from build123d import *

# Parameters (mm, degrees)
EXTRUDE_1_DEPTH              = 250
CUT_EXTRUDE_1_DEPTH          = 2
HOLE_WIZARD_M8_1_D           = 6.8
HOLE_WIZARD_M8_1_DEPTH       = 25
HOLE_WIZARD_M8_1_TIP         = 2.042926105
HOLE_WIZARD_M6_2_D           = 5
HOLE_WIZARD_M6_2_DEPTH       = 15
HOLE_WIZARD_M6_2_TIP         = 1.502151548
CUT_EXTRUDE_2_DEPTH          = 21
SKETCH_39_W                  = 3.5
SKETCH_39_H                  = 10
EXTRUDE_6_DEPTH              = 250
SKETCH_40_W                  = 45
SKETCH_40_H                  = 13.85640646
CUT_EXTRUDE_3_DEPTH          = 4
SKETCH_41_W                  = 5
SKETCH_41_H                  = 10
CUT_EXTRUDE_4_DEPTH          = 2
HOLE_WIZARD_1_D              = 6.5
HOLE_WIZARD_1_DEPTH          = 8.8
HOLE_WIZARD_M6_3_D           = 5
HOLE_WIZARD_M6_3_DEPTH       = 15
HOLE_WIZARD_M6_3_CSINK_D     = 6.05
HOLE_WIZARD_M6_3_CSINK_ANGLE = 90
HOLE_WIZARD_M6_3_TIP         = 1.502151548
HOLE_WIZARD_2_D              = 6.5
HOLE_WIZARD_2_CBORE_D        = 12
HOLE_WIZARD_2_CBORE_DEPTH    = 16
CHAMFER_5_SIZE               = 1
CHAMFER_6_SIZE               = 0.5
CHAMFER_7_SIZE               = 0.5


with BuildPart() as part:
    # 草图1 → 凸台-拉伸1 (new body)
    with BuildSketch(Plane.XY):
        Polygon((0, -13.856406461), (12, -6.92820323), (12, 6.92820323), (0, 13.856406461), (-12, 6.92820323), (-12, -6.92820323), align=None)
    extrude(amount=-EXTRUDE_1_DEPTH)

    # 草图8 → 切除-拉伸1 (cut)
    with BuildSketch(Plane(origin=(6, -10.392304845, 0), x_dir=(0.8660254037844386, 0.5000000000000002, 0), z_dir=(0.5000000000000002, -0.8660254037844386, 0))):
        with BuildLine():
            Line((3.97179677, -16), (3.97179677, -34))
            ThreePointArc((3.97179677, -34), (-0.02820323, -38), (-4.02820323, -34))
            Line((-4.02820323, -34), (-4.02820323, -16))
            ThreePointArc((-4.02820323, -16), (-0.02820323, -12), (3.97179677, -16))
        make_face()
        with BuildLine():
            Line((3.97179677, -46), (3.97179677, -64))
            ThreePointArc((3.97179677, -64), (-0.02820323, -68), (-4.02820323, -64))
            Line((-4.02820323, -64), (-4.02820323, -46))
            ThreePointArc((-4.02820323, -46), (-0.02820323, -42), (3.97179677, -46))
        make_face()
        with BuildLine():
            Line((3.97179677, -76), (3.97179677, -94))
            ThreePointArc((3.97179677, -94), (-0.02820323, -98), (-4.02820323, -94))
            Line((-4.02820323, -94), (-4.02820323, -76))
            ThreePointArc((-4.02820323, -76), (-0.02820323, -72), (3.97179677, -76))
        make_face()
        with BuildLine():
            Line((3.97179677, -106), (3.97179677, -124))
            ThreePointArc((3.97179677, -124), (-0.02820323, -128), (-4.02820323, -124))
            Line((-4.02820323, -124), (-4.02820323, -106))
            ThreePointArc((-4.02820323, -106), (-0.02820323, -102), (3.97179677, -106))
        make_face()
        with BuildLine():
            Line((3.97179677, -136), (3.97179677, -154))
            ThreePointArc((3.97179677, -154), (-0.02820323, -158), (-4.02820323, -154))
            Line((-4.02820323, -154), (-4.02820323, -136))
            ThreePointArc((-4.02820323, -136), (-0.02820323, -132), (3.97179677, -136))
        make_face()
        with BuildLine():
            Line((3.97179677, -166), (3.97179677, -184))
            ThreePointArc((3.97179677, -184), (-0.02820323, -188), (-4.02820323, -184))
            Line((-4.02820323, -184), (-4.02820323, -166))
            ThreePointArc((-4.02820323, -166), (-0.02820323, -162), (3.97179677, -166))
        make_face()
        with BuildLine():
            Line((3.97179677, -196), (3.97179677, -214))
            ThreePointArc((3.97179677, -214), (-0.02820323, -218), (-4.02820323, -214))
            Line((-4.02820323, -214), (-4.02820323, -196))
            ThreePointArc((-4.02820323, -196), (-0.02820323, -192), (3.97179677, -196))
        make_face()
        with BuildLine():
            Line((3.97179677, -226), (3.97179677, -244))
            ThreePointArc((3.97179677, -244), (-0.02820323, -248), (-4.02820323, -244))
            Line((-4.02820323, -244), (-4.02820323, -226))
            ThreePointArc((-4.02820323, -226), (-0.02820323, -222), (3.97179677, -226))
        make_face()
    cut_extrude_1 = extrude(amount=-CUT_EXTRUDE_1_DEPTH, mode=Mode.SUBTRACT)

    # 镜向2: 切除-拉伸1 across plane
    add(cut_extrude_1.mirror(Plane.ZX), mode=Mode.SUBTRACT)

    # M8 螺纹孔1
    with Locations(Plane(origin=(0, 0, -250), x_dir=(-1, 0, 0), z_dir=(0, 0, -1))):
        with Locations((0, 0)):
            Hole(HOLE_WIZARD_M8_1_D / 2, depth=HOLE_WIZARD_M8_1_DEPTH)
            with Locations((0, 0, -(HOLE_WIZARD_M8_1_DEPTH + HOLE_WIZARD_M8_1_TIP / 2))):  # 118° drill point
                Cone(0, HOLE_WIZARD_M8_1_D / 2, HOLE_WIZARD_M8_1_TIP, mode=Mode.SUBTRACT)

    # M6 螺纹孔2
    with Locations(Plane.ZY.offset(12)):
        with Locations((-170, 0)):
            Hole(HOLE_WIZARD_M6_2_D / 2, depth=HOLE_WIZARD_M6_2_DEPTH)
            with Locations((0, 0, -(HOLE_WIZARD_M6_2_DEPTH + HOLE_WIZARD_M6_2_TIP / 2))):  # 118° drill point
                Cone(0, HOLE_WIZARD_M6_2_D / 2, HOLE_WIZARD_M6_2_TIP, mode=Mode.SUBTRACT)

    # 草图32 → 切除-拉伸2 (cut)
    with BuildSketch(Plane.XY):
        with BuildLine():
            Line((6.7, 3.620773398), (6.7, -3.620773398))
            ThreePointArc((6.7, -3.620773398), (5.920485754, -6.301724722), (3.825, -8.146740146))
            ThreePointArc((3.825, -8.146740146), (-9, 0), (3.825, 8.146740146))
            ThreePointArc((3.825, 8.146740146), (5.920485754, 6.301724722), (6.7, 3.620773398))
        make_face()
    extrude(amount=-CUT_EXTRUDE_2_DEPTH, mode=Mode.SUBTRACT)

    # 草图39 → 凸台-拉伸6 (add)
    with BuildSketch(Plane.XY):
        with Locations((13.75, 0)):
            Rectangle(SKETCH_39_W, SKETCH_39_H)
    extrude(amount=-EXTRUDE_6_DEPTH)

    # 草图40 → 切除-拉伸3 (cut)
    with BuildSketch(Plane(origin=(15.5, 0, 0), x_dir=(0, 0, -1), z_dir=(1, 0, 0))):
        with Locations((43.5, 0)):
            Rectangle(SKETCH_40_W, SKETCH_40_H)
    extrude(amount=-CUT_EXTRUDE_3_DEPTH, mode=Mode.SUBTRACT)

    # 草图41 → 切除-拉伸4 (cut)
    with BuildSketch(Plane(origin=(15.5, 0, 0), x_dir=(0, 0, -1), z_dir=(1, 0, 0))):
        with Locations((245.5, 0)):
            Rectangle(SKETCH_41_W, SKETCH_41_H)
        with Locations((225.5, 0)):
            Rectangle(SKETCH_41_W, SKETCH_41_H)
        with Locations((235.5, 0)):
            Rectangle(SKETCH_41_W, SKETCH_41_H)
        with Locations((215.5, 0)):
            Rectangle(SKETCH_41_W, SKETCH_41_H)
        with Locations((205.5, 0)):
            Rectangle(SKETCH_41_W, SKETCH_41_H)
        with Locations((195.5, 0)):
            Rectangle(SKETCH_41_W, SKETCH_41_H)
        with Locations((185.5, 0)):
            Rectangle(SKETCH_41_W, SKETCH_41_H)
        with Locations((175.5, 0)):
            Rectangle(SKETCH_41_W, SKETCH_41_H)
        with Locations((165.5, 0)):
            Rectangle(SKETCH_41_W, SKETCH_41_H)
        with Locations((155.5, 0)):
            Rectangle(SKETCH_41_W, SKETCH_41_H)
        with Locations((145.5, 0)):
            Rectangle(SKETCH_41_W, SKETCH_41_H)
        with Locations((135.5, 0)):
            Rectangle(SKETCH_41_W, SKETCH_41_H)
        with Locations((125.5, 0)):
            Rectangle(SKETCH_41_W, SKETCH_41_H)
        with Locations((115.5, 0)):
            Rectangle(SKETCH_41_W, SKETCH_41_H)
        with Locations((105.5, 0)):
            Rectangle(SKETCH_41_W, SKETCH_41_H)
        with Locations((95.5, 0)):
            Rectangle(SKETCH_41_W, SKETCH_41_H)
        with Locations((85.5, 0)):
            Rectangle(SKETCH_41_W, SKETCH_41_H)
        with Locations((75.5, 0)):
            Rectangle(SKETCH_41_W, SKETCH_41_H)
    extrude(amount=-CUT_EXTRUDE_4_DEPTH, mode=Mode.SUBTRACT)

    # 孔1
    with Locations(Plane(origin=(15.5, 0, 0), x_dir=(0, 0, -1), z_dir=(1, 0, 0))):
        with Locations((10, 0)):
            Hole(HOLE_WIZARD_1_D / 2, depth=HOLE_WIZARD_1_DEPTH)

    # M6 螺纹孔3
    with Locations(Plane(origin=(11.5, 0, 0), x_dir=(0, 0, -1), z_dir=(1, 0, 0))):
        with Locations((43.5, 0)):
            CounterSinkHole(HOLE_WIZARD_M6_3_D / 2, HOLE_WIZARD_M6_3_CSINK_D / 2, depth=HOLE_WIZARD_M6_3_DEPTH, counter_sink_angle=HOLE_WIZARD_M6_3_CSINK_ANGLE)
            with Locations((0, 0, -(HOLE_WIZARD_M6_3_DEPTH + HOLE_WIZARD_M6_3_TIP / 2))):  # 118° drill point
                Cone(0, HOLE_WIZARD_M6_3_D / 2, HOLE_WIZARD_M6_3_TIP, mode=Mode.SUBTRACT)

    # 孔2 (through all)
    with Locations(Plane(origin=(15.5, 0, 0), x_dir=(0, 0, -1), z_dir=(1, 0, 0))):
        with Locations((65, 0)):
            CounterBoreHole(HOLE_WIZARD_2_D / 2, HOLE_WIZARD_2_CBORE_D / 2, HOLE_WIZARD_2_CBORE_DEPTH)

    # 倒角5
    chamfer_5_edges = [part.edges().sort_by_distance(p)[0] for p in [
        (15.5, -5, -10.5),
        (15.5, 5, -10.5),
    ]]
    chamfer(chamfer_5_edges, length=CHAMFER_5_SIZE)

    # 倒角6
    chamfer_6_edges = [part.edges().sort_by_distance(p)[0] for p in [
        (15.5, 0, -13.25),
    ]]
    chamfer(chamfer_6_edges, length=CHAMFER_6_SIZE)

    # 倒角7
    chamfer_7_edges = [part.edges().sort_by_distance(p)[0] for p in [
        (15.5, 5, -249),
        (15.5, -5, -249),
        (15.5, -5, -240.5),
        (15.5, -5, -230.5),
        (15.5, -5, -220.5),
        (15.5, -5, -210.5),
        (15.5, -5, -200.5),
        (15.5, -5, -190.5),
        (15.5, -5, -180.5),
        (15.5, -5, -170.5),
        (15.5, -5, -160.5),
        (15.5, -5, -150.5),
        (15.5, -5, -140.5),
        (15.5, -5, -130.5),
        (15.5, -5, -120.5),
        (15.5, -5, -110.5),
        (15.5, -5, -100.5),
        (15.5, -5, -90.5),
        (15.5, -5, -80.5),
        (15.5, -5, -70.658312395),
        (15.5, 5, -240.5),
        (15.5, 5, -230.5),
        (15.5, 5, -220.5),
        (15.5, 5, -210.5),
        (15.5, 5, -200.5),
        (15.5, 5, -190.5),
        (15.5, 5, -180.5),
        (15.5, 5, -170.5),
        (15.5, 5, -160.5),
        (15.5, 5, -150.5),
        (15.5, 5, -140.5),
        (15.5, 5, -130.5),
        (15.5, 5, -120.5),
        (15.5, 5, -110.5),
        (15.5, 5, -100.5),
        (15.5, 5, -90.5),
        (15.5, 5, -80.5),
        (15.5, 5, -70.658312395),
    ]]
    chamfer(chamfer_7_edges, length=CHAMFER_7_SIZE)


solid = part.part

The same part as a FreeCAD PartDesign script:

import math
import FreeCAD as App
import Part
import Sketcher
Q = App.Units.Quantity


def edges_at(feature, points):
    """Names of the edges that pass closest to the given points."""
    edges = feature.Shape.Edges
    near = lambda p: min(range(len(edges)), key=lambda i: edges[i].distToShape(Part.Vertex(*p))[0])
    return sorted({f"Edge{near(p) + 1}" for p in points})


def add_polygon(sketch, points):
    """Adds a closed chain of lines whose ends are joined by coincident constraints."""
    first, n = sketch.GeometryCount, len(points)
    for a, b in zip(points, points[1:] + points[:1]):
        sketch.addGeometry(Part.LineSegment(App.Vector(*a, 0), App.Vector(*b, 0)), False)
    for i in range(n):
        sketch.addConstraint(Sketcher.Constraint("Coincident", first + i, 2, first + (i + 1) % n, 1))

doc = App.newDocument("Part")
body = doc.addObject("PartDesign::Body", "Body")

# Sketch on XY plane
sketch1 = body.newObject("Sketcher::SketchObject", "Sketch")
sketch1.AttachmentSupport = (doc.getObject("XY_Plane"), [""])
sketch1.MapMode = "FlatFace"
add_polygon(sketch1, [(0, -14), (12, -7), (12, 7), (0, 14), (-12, 7), (-12, -7)])  # lines 0-5
sketch1.addConstraint(Sketcher.Constraint("Vertical", 1))
sketch1.addConstraint(Sketcher.Constraint("Vertical", 4))
sketch1.addConstraint(Sketcher.Constraint("Symmetric", 0, 2, 3, 2, -1, 1))
sketch1.addConstraint(Sketcher.Constraint("Symmetric", 2, 2, 5, 2, -1, 1))
sketch1.addConstraint(Sketcher.Constraint("PointOnObject", 2, 2, -2))
sketch1.addConstraint(Sketcher.Constraint("Parallel", 2, 5))
sketch1.addConstraint(Sketcher.Constraint("Horizontal", 1, 2, 3, 2))
sketch1.addConstraint(Sketcher.Constraint("Angle", 0, Q("30 deg")))
sketch1.addConstraint(Sketcher.Constraint("DistanceX", -1, 1, 0, 2, Q("12 mm")))
sketch1.addConstraint(Sketcher.Constraint("DistanceY", 1, 1, 1, 2, Q("13.856406 mm")))
pad1 = body.newObject("PartDesign::Pad", "Pad")
pad1.Profile = sketch1
pad1.Length = 250
pad1.Reversed = True

# Sketch on an angled plane
sketch2 = body.newObject("Sketcher::SketchObject", "Sketch001")
sketch2.Placement = App.Placement(App.Vector(6, -10.392305, 0), App.Rotation(App.Vector(0.866025404, 0.5, 0), App.Vector(0, 0, 1), App.Vector(0.5, -0.866025404, 0), "ZXY"))
sketch2.addGeometry(Part.LineSegment(App.Vector(4, -34, 0), App.Vector(4, -16, 0)), False)
sketch2.addGeometry(Part.ArcOfCircle(Part.Circle(App.Vector(0, -16, 0), App.Vector(0, 0, 1), 4), math.radians(0), math.radians(180)), False)
sketch2.addGeometry(Part.LineSegment(App.Vector(-4, -16, 0), App.Vector(-4, -34, 0)), False)
sketch2.addGeometry(Part.ArcOfCircle(Part.Circle(App.Vector(0, -34, 0), App.Vector(0, 0, 1), 4), math.radians(180), math.radians(360)), False)
sketch2.addGeometry(Part.LineSegment(App.Vector(4, -64, 0), App.Vector(4, -46, 0)), False)
sketch2.addGeometry(Part.ArcOfCircle(Part.Circle(App.Vector(0, -46, 0), App.Vector(0, 0, 1), 4), math.radians(0), math.radians(180)), False)
sketch2.addGeometry(Part.LineSegment(App.Vector(-4, -46, 0), App.Vector(-4, -64, 0)), False)
sketch2.addGeometry(Part.ArcOfCircle(Part.Circle(App.Vector(0, -64, 0), App.Vector(0, 0, 1), 4), math.radians(180), math.radians(360)), False)
sketch2.addGeometry(Part.LineSegment(App.Vector(4, -94, 0), App.Vector(4, -76, 0)), False)
sketch2.addGeometry(Part.ArcOfCircle(Part.Circle(App.Vector(0, -76, 0), App.Vector(0, 0, 1), 4), math.radians(0), math.radians(180)), False)
sketch2.addGeometry(Part.LineSegment(App.Vector(-4, -76, 0), App.Vector(-4, -94, 0)), False)
sketch2.addGeometry(Part.ArcOfCircle(Part.Circle(App.Vector(0, -94, 0), App.Vector(0, 0, 1), 4), math.radians(180), math.radians(360)), False)
sketch2.addGeometry(Part.LineSegment(App.Vector(4, -124, 0), App.Vector(4, -106, 0)), False)
sketch2.addGeometry(Part.ArcOfCircle(Part.Circle(App.Vector(0, -106, 0), App.Vector(0, 0, 1), 4), math.radians(0), math.radians(180)), False)
sketch2.addGeometry(Part.LineSegment(App.Vector(-4, -106, 0), App.Vector(-4, -124, 0)), False)
sketch2.addGeometry(Part.ArcOfCircle(Part.Circle(App.Vector(0, -124, 0), App.Vector(0, 0, 1), 4), math.radians(180), math.radians(360)), False)
sketch2.addGeometry(Part.LineSegment(App.Vector(4, -154, 0), App.Vector(4, -136, 0)), False)
sketch2.addGeometry(Part.ArcOfCircle(Part.Circle(App.Vector(0, -136, 0), App.Vector(0, 0, 1), 4), math.radians(0), math.radians(180)), False)
sketch2.addGeometry(Part.LineSegment(App.Vector(-4, -136, 0), App.Vector(-4, -154, 0)), False)
sketch2.addGeometry(Part.ArcOfCircle(Part.Circle(App.Vector(0, -154, 0), App.Vector(0, 0, 1), 4), math.radians(180), math.radians(360)), False)
sketch2.addGeometry(Part.LineSegment(App.Vector(4, -184, 0), App.Vector(4, -166, 0)), False)
sketch2.addGeometry(Part.ArcOfCircle(Part.Circle(App.Vector(0, -166, 0), App.Vector(0, 0, 1), 4), math.radians(0), math.radians(180)), False)
sketch2.addGeometry(Part.LineSegment(App.Vector(-4, -166, 0), App.Vector(-4, -184, 0)), False)
sketch2.addGeometry(Part.ArcOfCircle(Part.Circle(App.Vector(0, -184, 0), App.Vector(0, 0, 1), 4), math.radians(180), math.radians(360)), False)
sketch2.addGeometry(Part.LineSegment(App.Vector(4, -214, 0), App.Vector(4, -196, 0)), False)
sketch2.addGeometry(Part.ArcOfCircle(Part.Circle(App.Vector(0, -196, 0), App.Vector(0, 0, 1), 4), math.radians(0), math.radians(180)), False)
sketch2.addGeometry(Part.LineSegment(App.Vector(-4, -196, 0), App.Vector(-4, -214, 0)), False)
sketch2.addGeometry(Part.ArcOfCircle(Part.Circle(App.Vector(0, -214, 0), App.Vector(0, 0, 1), 4), math.radians(180), math.radians(360)), False)
sketch2.addGeometry(Part.LineSegment(App.Vector(4, -244, 0), App.Vector(4, -226, 0)), False)
sketch2.addGeometry(Part.ArcOfCircle(Part.Circle(App.Vector(0, -226, 0), App.Vector(0, 0, 1), 4), math.radians(0), math.radians(180)), False)
sketch2.addGeometry(Part.LineSegment(App.Vector(-4, -226, 0), App.Vector(-4, -244, 0)), False)
sketch2.addGeometry(Part.ArcOfCircle(Part.Circle(App.Vector(0, -244, 0), App.Vector(0, 0, 1), 4), math.radians(180), math.radians(360)), False)
sketch2.addConstraint(Sketcher.Constraint("Tangent", 0, 2, 1, 1))
sketch2.addConstraint(Sketcher.Constraint("Tangent", 1, 2, 2, 1))
sketch2.addConstraint(Sketcher.Constraint("Tangent", 2, 2, 3, 1))
sketch2.addConstraint(Sketcher.Constraint("Tangent", 3, 2, 0, 1))
sketch2.addConstraint(Sketcher.Constraint("Tangent", 4, 2, 5, 1))
sketch2.addConstraint(Sketcher.Constraint("Tangent", 5, 2, 6, 1))
sketch2.addConstraint(Sketcher.Constraint("Tangent", 6, 2, 7, 1))
sketch2.addConstraint(Sketcher.Constraint("Tangent", 7, 2, 4, 1))
sketch2.addConstraint(Sketcher.Constraint("Tangent", 8, 2, 9, 1))
sketch2.addConstraint(Sketcher.Constraint("Tangent", 9, 2, 10, 1))
sketch2.addConstraint(Sketcher.Constraint("Tangent", 10, 2, 11, 1))
sketch2.addConstraint(Sketcher.Constraint("Tangent", 11, 2, 8, 1))
sketch2.addConstraint(Sketcher.Constraint("Tangent", 12, 2, 13, 1))
sketch2.addConstraint(Sketcher.Constraint("Tangent", 13, 2, 14, 1))
sketch2.addConstraint(Sketcher.Constraint("Tangent", 14, 2, 15, 1))
sketch2.addConstraint(Sketcher.Constraint("Tangent", 15, 2, 12, 1))
sketch2.addConstraint(Sketcher.Constraint("Tangent", 16, 2, 17, 1))
sketch2.addConstraint(Sketcher.Constraint("Tangent", 17, 2, 18, 1))
sketch2.addConstraint(Sketcher.Constraint("Tangent", 18, 2, 19, 1))
sketch2.addConstraint(Sketcher.Constraint("Tangent", 19, 2, 16, 1))
sketch2.addConstraint(Sketcher.Constraint("Tangent", 20, 2, 21, 1))
sketch2.addConstraint(Sketcher.Constraint("Tangent", 21, 2, 22, 1))
sketch2.addConstraint(Sketcher.Constraint("Tangent", 22, 2, 23, 1))
sketch2.addConstraint(Sketcher.Constraint("Tangent", 23, 2, 20, 1))
sketch2.addConstraint(Sketcher.Constraint("Tangent", 24, 2, 25, 1))
sketch2.addConstraint(Sketcher.Constraint("Tangent", 25, 2, 26, 1))
sketch2.addConstraint(Sketcher.Constraint("Tangent", 26, 2, 27, 1))
sketch2.addConstraint(Sketcher.Constraint("Tangent", 27, 2, 24, 1))
sketch2.addConstraint(Sketcher.Constraint("Tangent", 28, 2, 29, 1))
sketch2.addConstraint(Sketcher.Constraint("Tangent", 29, 2, 30, 1))
sketch2.addConstraint(Sketcher.Constraint("Tangent", 30, 2, 31, 1))
sketch2.addConstraint(Sketcher.Constraint("Tangent", 31, 2, 28, 1))
sketch2.addConstraint(Sketcher.Constraint("Vertical", 0))
sketch2.addConstraint(Sketcher.Constraint("Vertical", 2))
sketch2.addConstraint(Sketcher.Constraint("Vertical", 4))
sketch2.addConstraint(Sketcher.Constraint("Vertical", 6))
sketch2.addConstraint(Sketcher.Constraint("Vertical", 8))
sketch2.addConstraint(Sketcher.Constraint("Vertical", 10))
sketch2.addConstraint(Sketcher.Constraint("Vertical", 12))
sketch2.addConstraint(Sketcher.Constraint("Vertical", 14))
sketch2.addConstraint(Sketcher.Constraint("Vertical", 16))
sketch2.addConstraint(Sketcher.Constraint("Vertical", 18))
sketch2.addConstraint(Sketcher.Constraint("Vertical", 20))
sketch2.addConstraint(Sketcher.Constraint("Vertical", 22))
sketch2.addConstraint(Sketcher.Constraint("Vertical", 24))
sketch2.addConstraint(Sketcher.Constraint("Vertical", 26))
sketch2.addConstraint(Sketcher.Constraint("Vertical", 28))
sketch2.addConstraint(Sketcher.Constraint("Vertical", 30))
sketch2.addConstraint(Sketcher.Constraint("Equal", 3, 5))
sketch2.addConstraint(Sketcher.Constraint("Equal", 7, 9))
sketch2.addConstraint(Sketcher.Constraint("Equal", 11, 13))
sketch2.addConstraint(Sketcher.Constraint("Equal", 15, 17))
sketch2.addConstraint(Sketcher.Constraint("Equal", 19, 21))
sketch2.addConstraint(Sketcher.Constraint("Equal", 23, 25))
sketch2.addConstraint(Sketcher.Constraint("Equal", 27, 29))
sketch2.addConstraint(Sketcher.Constraint("Vertical", 3, 3, 5, 3))
sketch2.addConstraint(Sketcher.Constraint("Vertical", 7, 3, 9, 3))
sketch2.addConstraint(Sketcher.Constraint("Vertical", 11, 3, 13, 3))
sketch2.addConstraint(Sketcher.Constraint("Vertical", 15, 3, 17, 3))
sketch2.addConstraint(Sketcher.Constraint("Vertical", 19, 3, 21, 3))
sketch2.addConstraint(Sketcher.Constraint("Vertical", 23, 3, 25, 3))
sketch2.addConstraint(Sketcher.Constraint("Vertical", 27, 3, 29, 3))
sketch2.addConstraint(Sketcher.Constraint("Equal", 2, 4))
sketch2.addConstraint(Sketcher.Constraint("Equal", 6, 8))
sketch2.addConstraint(Sketcher.Constraint("Equal", 10, 12))
sketch2.addConstraint(Sketcher.Constraint("Equal", 14, 16))
sketch2.addConstraint(Sketcher.Constraint("Equal", 18, 20))
sketch2.addConstraint(Sketcher.Constraint("Equal", 22, 24))
sketch2.addConstraint(Sketcher.Constraint("Equal", 26, 28))
sketch2.addConstraint(Sketcher.Constraint("Radius", 1, Q("4 mm")))
sketch2.addConstraint(Sketcher.Constraint("DistanceY", 0, 1, 0, 2, Q("18 mm")))
sketch2.addConstraint(Sketcher.Constraint("DistanceY", 1, 3, -1, 1, Q("16 mm")))
sketch2.addConstraint(Sketcher.Constraint("DistanceY", 5, 3, -1, 1, Q("46 mm")))
sketch2.addConstraint(Sketcher.Constraint("DistanceY", 9, 3, -1, 1, Q("76 mm")))
sketch2.addConstraint(Sketcher.Constraint("DistanceY", 13, 3, -1, 1, Q("106 mm")))
sketch2.addConstraint(Sketcher.Constraint("DistanceY", 17, 3, -1, 1, Q("136 mm")))
sketch2.addConstraint(Sketcher.Constraint("DistanceY", 21, 3, -1, 1, Q("166 mm")))
sketch2.addConstraint(Sketcher.Constraint("DistanceY", 25, 3, -1, 1, Q("196 mm")))
sketch2.addConstraint(Sketcher.Constraint("DistanceY", 29, 3, -1, 1, Q("226 mm")))
sketch2.addConstraint(Sketcher.Constraint("DistanceX", 1, 3, -1, 1, Q("0.028203 mm")))
pocket1 = body.newObject("PartDesign::Pocket", "Pocket")
pocket1.Profile = sketch2
pocket1.Length = 2
doc.recompute()

mirrored = body.newObject("PartDesign::Mirrored", "Mirrored")
mirrored.Originals = [pocket1]
mirrored.MirrorPlane = (doc.getObject("XZ_Plane"), [""])
body.Tip = mirrored

# Sketch on XY plane
sketch3 = body.newObject("Sketcher::SketchObject", "Sketch002")
sketch3.AttachmentSupport = (doc.getObject("XY_Plane"), [""])
sketch3.MapMode = "FlatFace"
sketch3.AttachmentOffset = App.Placement(App.Vector(0, 0, -250), App.Rotation())
sketch3.addGeometry(Part.Circle(App.Vector(0, 0, 0), App.Vector(0, 0, 1), 3.4), False)
sketch3.addConstraint(Sketcher.Constraint("Coincident", 0, 3, -1, 1))
sketch3.addConstraint(Sketcher.Constraint("Diameter", 0, Q("6.8 mm")))
doc.recompute()
hole = body.newObject("PartDesign::Hole", "Hole")
hole.Profile = sketch3
hole.ThreadType = "None"
hole.Diameter = 6.8
hole.DepthType = "Dimension"
hole.Depth = 25
hole.DrillPoint = "Angled"
hole.DrillPointAngle = 118
hole.Reversed = True

# Sketch on YZ plane
sketch4 = body.newObject("Sketcher::SketchObject", "Sketch003")
sketch4.AttachmentSupport = (doc.getObject("YZ_Plane"), [""])
sketch4.MapMode = "FlatFace"
sketch4.AttachmentOffset = App.Placement(App.Vector(0, 0, -12), App.Rotation())
sketch4.addGeometry(Part.Circle(App.Vector(0, -170, 0), App.Vector(0, 0, 1), 2.5), False)
sketch4.addConstraint(Sketcher.Constraint("PointOnObject", 0, 3, -2))
sketch4.addConstraint(Sketcher.Constraint("Diameter", 0, Q("5 mm")))
sketch4.addConstraint(Sketcher.Constraint("DistanceY", 0, 3, -1, 1, Q("170 mm")))
doc.recompute()
hole2 = body.newObject("PartDesign::Hole", "Hole001")
hole2.Profile = sketch4
hole2.ThreadType = "None"
hole2.Diameter = 5
hole2.DepthType = "Dimension"
hole2.Depth = 15
hole2.DrillPoint = "Angled"
hole2.DrillPointAngle = 118
hole2.Reversed = True

# Sketch on XY plane
sketch5 = body.newObject("Sketcher::SketchObject", "Sketch004")
sketch5.AttachmentSupport = (doc.getObject("XY_Plane"), [""])
sketch5.MapMode = "FlatFace"
sketch5.addGeometry(Part.LineSegment(App.Vector(7, -4, 0), App.Vector(7, 4, 0)), False)
sketch5.addGeometry(Part.ArcOfCircle(Part.Circle(App.Vector(2, 4, 0), App.Vector(0, 0, 1), 5), math.radians(0), math.radians(65)), False)
sketch5.addGeometry(Part.ArcOfCircle(Part.Circle(App.Vector(0, 0, 0), App.Vector(0, 0, 1), 9), math.radians(65), math.radians(295)), False)
sketch5.addGeometry(Part.ArcOfCircle(Part.Circle(App.Vector(2, -4, 0), App.Vector(0, 0, 1), 5), math.radians(-65), math.radians(0)), False)
sketch5.addConstraint(Sketcher.Constraint("Tangent", 0, 2, 1, 1))
sketch5.addConstraint(Sketcher.Constraint("Tangent", 1, 2, 2, 1))
sketch5.addConstraint(Sketcher.Constraint("Tangent", 2, 2, 3, 1))
sketch5.addConstraint(Sketcher.Constraint("Tangent", 3, 2, 0, 1))
sketch5.addConstraint(Sketcher.Constraint("Vertical", 0))
sketch5.addConstraint(Sketcher.Constraint("Coincident", 2, 3, -1, 1))
sketch5.addConstraint(Sketcher.Constraint("Equal", 1, 3))
sketch5.addConstraint(Sketcher.Constraint("Radius", 1, Q("5 mm")))
sketch5.addConstraint(Sketcher.Constraint("Radius", 2, Q("9 mm")))
sketch5.addConstraint(Sketcher.Constraint("DistanceX", -1, 1, 1, 3, Q("1.7 mm")))
pocket2 = body.newObject("PartDesign::Pocket", "Pocket001")
pocket2.Profile = sketch5
pocket2.Length = 21

# Sketch on XY plane
sketch6 = body.newObject("Sketcher::SketchObject", "Sketch005")
sketch6.AttachmentSupport = (doc.getObject("XY_Plane"), [""])
sketch6.MapMode = "FlatFace"
add_polygon(sketch6, [(12, 5), (12, -5), (15.5, -5), (15.5, 5)])  # lines 0-3
sketch6.addConstraint(Sketcher.Constraint("Vertical", 0))
sketch6.addConstraint(Sketcher.Constraint("Horizontal", 1))
sketch6.addConstraint(Sketcher.Constraint("Vertical", 2))
sketch6.addConstraint(Sketcher.Constraint("Horizontal", 3))
sketch6.addConstraint(Sketcher.Constraint("DistanceY", 0, 2, 0, 1, Q("10 mm")))
sketch6.addConstraint(Sketcher.Constraint("DistanceX", 1, 1, 1, 2, Q("3.5 mm")))
sketch6.addConstraint(Sketcher.Constraint("DistanceX", -1, 1, 0, 2, Q("12 mm")))
sketch6.addConstraint(Sketcher.Constraint("DistanceY", 0, 2, -1, 1, Q("5 mm")))
pad2 = body.newObject("PartDesign::Pad", "Pad001")
pad2.Profile = sketch6
pad2.Length = 250
pad2.Reversed = True

# Sketch on YZ plane
sketch7 = body.newObject("Sketcher::SketchObject", "Sketch006")
sketch7.AttachmentSupport = (doc.getObject("YZ_Plane"), [""])
sketch7.MapMode = "FlatFace"
sketch7.AttachmentOffset = App.Placement(App.Vector(0, 0, 15.5), App.Rotation())
add_polygon(sketch7, [(7, -21), (-7, -21), (-7, -66), (7, -66)])  # lines 0-3
sketch7.addConstraint(Sketcher.Constraint("Horizontal", 0))
sketch7.addConstraint(Sketcher.Constraint("Vertical", 1))
sketch7.addConstraint(Sketcher.Constraint("Horizontal", 2))
sketch7.addConstraint(Sketcher.Constraint("Vertical", 3))
sketch7.addConstraint(Sketcher.Constraint("DistanceY", 1, 2, 1, 1, Q("45 mm")))
sketch7.addConstraint(Sketcher.Constraint("DistanceY", 0, 2, -1, 1, Q("21 mm")))
sketch7.addConstraint(Sketcher.Constraint("DistanceX", 0, 2, 0, 1, Q("13.856406 mm")))
sketch7.addConstraint(Sketcher.Constraint("DistanceX", 0, 2, -1, 1, Q("6.928203 mm")))
pocket3 = body.newObject("PartDesign::Pocket", "Pocket002")
pocket3.Profile = sketch7
pocket3.Length = 4

# Sketch on YZ plane
sketch8 = body.newObject("Sketcher::SketchObject", "Sketch007")
sketch8.AttachmentSupport = (doc.getObject("YZ_Plane"), [""])
sketch8.MapMode = "FlatFace"
sketch8.AttachmentOffset = App.Placement(App.Vector(0, 0, 15.5), App.Rotation())
add_polygon(sketch8, [(5, -243), (-5, -243), (-5, -248), (5, -248)])  # lines 0-3
add_polygon(sketch8, [(5, -223), (-5, -223), (-5, -228), (5, -228)])  # lines 4-7
add_polygon(sketch8, [(5, -233), (-5, -233), (-5, -238), (5, -238)])  # lines 8-11
add_polygon(sketch8, [(5, -213), (-5, -213), (-5, -218), (5, -218)])  # lines 12-15
add_polygon(sketch8, [(5, -203), (-5, -203), (-5, -208), (5, -208)])  # lines 16-19
add_polygon(sketch8, [(5, -193), (-5, -193), (-5, -198), (5, -198)])  # lines 20-23
add_polygon(sketch8, [(5, -183), (-5, -183), (-5, -188), (5, -188)])  # lines 24-27
add_polygon(sketch8, [(5, -173), (-5, -173), (-5, -178), (5, -178)])  # lines 28-31
add_polygon(sketch8, [(5, -163), (-5, -163), (-5, -168), (5, -168)])  # lines 32-35
add_polygon(sketch8, [(5, -153), (-5, -153), (-5, -158), (5, -158)])  # lines 36-39
add_polygon(sketch8, [(5, -143), (-5, -143), (-5, -148), (5, -148)])  # lines 40-43
add_polygon(sketch8, [(5, -133), (-5, -133), (-5, -138), (5, -138)])  # lines 44-47
add_polygon(sketch8, [(5, -123), (-5, -123), (-5, -128), (5, -128)])  # lines 48-51
add_polygon(sketch8, [(5, -113), (-5, -113), (-5, -118), (5, -118)])  # lines 52-55
add_polygon(sketch8, [(5, -103), (-5, -103), (-5, -108), (5, -108)])  # lines 56-59
add_polygon(sketch8, [(5, -93), (-5, -93), (-5, -98), (5, -98)])  # lines 60-63
add_polygon(sketch8, [(5, -83), (-5, -83), (-5, -88), (5, -88)])  # lines 64-67
add_polygon(sketch8, [(5, -73), (-5, -73), (-5, -78), (5, -78)])  # lines 68-71
sketch8.addConstraint(Sketcher.Constraint("Horizontal", 0))
sketch8.addConstraint(Sketcher.Constraint("Vertical", 1))
sketch8.addConstraint(Sketcher.Constraint("Horizontal", 2))
sketch8.addConstraint(Sketcher.Constraint("Vertical", 3))
sketch8.addConstraint(Sketcher.Constraint("Horizontal", 4))
sketch8.addConstraint(Sketcher.Constraint("Vertical", 5))
sketch8.addConstraint(Sketcher.Constraint("Horizontal", 6))
sketch8.addConstraint(Sketcher.Constraint("Vertical", 7))
sketch8.addConstraint(Sketcher.Constraint("Horizontal", 8))
sketch8.addConstraint(Sketcher.Constraint("Vertical", 9))
sketch8.addConstraint(Sketcher.Constraint("Horizontal", 10))
sketch8.addConstraint(Sketcher.Constraint("Vertical", 11))
sketch8.addConstraint(Sketcher.Constraint("Horizontal", 12))
sketch8.addConstraint(Sketcher.Constraint("Vertical", 13))
sketch8.addConstraint(Sketcher.Constraint("Horizontal", 14))
sketch8.addConstraint(Sketcher.Constraint("Vertical", 15))
sketch8.addConstraint(Sketcher.Constraint("Horizontal", 16))
sketch8.addConstraint(Sketcher.Constraint("Vertical", 17))
sketch8.addConstraint(Sketcher.Constraint("Horizontal", 18))
sketch8.addConstraint(Sketcher.Constraint("Vertical", 19))
sketch8.addConstraint(Sketcher.Constraint("Horizontal", 20))
sketch8.addConstraint(Sketcher.Constraint("Vertical", 21))
sketch8.addConstraint(Sketcher.Constraint("Horizontal", 22))
sketch8.addConstraint(Sketcher.Constraint("Vertical", 23))
sketch8.addConstraint(Sketcher.Constraint("Horizontal", 24))
sketch8.addConstraint(Sketcher.Constraint("Vertical", 25))
sketch8.addConstraint(Sketcher.Constraint("Horizontal", 26))
sketch8.addConstraint(Sketcher.Constraint("Vertical", 27))
sketch8.addConstraint(Sketcher.Constraint("Horizontal", 28))
sketch8.addConstraint(Sketcher.Constraint("Vertical", 29))
sketch8.addConstraint(Sketcher.Constraint("Horizontal", 30))
sketch8.addConstraint(Sketcher.Constraint("Vertical", 31))
sketch8.addConstraint(Sketcher.Constraint("Horizontal", 32))
sketch8.addConstraint(Sketcher.Constraint("Vertical", 33))
sketch8.addConstraint(Sketcher.Constraint("Horizontal", 34))
sketch8.addConstraint(Sketcher.Constraint("Vertical", 35))
sketch8.addConstraint(Sketcher.Constraint("Horizontal", 36))
sketch8.addConstraint(Sketcher.Constraint("Vertical", 37))
sketch8.addConstraint(Sketcher.Constraint("Horizontal", 38))
sketch8.addConstraint(Sketcher.Constraint("Vertical", 39))
sketch8.addConstraint(Sketcher.Constraint("Horizontal", 40))
sketch8.addConstraint(Sketcher.Constraint("Vertical", 41))
sketch8.addConstraint(Sketcher.Constraint("Horizontal", 42))
sketch8.addConstraint(Sketcher.Constraint("Vertical", 43))
sketch8.addConstraint(Sketcher.Constraint("Horizontal", 44))
sketch8.addConstraint(Sketcher.Constraint("Vertical", 45))
sketch8.addConstraint(Sketcher.Constraint("Horizontal", 46))
sketch8.addConstraint(Sketcher.Constraint("Vertical", 47))
sketch8.addConstraint(Sketcher.Constraint("Horizontal", 48))
sketch8.addConstraint(Sketcher.Constraint("Vertical", 49))
sketch8.addConstraint(Sketcher.Constraint("Horizontal", 50))
sketch8.addConstraint(Sketcher.Constraint("Vertical", 51))
sketch8.addConstraint(Sketcher.Constraint("Horizontal", 52))
sketch8.addConstraint(Sketcher.Constraint("Vertical", 53))
sketch8.addConstraint(Sketcher.Constraint("Horizontal", 54))
sketch8.addConstraint(Sketcher.Constraint("Vertical", 55))
sketch8.addConstraint(Sketcher.Constraint("Horizontal", 56))
sketch8.addConstraint(Sketcher.Constraint("Vertical", 57))
sketch8.addConstraint(Sketcher.Constraint("Horizontal", 58))
sketch8.addConstraint(Sketcher.Constraint("Vertical", 59))
sketch8.addConstraint(Sketcher.Constraint("Horizontal", 60))
sketch8.addConstraint(Sketcher.Constraint("Vertical", 61))
sketch8.addConstraint(Sketcher.Constraint("Horizontal", 62))
sketch8.addConstraint(Sketcher.Constraint("Vertical", 63))
sketch8.addConstraint(Sketcher.Constraint("Horizontal", 64))
sketch8.addConstraint(Sketcher.Constraint("Vertical", 65))
sketch8.addConstraint(Sketcher.Constraint("Horizontal", 66))
sketch8.addConstraint(Sketcher.Constraint("Vertical", 67))
sketch8.addConstraint(Sketcher.Constraint("Horizontal", 68))
sketch8.addConstraint(Sketcher.Constraint("Vertical", 69))
sketch8.addConstraint(Sketcher.Constraint("Horizontal", 70))
sketch8.addConstraint(Sketcher.Constraint("Vertical", 71))
sketch8.addConstraint(Sketcher.Constraint("Vertical", 1, 2, 4, 2))
sketch8.addConstraint(Sketcher.Constraint("Vertical", 3, 2, 6, 2))
sketch8.addConstraint(Sketcher.Constraint("Vertical", 5, 2, 8, 2))
sketch8.addConstraint(Sketcher.Constraint("Vertical", 7, 2, 10, 2))
sketch8.addConstraint(Sketcher.Constraint("Vertical", 9, 2, 12, 2))
sketch8.addConstraint(Sketcher.Constraint("Vertical", 11, 2, 14, 2))
sketch8.addConstraint(Sketcher.Constraint("Vertical", 13, 2, 16, 2))
sketch8.addConstraint(Sketcher.Constraint("Vertical", 15, 2, 18, 2))
sketch8.addConstraint(Sketcher.Constraint("Vertical", 17, 2, 20, 2))
sketch8.addConstraint(Sketcher.Constraint("Vertical", 19, 2, 22, 2))
sketch8.addConstraint(Sketcher.Constraint("Vertical", 21, 2, 24, 2))
sketch8.addConstraint(Sketcher.Constraint("Vertical", 23, 2, 26, 2))
sketch8.addConstraint(Sketcher.Constraint("Vertical", 25, 2, 28, 2))
sketch8.addConstraint(Sketcher.Constraint("Vertical", 27, 2, 30, 2))
sketch8.addConstraint(Sketcher.Constraint("Vertical", 29, 2, 32, 2))
sketch8.addConstraint(Sketcher.Constraint("Vertical", 31, 2, 34, 2))
sketch8.addConstraint(Sketcher.Constraint("Vertical", 33, 2, 36, 2))
sketch8.addConstraint(Sketcher.Constraint("Vertical", 35, 2, 38, 2))
sketch8.addConstraint(Sketcher.Constraint("Vertical", 37, 2, 40, 2))
sketch8.addConstraint(Sketcher.Constraint("Vertical", 39, 2, 42, 2))
sketch8.addConstraint(Sketcher.Constraint("Vertical", 41, 2, 44, 2))
sketch8.addConstraint(Sketcher.Constraint("Vertical", 43, 2, 46, 2))
sketch8.addConstraint(Sketcher.Constraint("Vertical", 45, 2, 48, 2))
sketch8.addConstraint(Sketcher.Constraint("Vertical", 47, 2, 50, 2))
sketch8.addConstraint(Sketcher.Constraint("Vertical", 49, 2, 52, 2))
sketch8.addConstraint(Sketcher.Constraint("Vertical", 51, 2, 54, 2))
sketch8.addConstraint(Sketcher.Constraint("Vertical", 53, 2, 56, 2))
sketch8.addConstraint(Sketcher.Constraint("Vertical", 55, 2, 58, 2))
sketch8.addConstraint(Sketcher.Constraint("Vertical", 57, 2, 60, 2))
sketch8.addConstraint(Sketcher.Constraint("Vertical", 59, 2, 62, 2))
sketch8.addConstraint(Sketcher.Constraint("Vertical", 61, 2, 64, 2))
sketch8.addConstraint(Sketcher.Constraint("Vertical", 63, 2, 66, 2))
sketch8.addConstraint(Sketcher.Constraint("Vertical", 65, 2, 68, 2))
sketch8.addConstraint(Sketcher.Constraint("Vertical", 67, 2, 70, 2))
sketch8.addConstraint(Sketcher.Constraint("Equal", 3, 5))
sketch8.addConstraint(Sketcher.Constraint("Equal", 7, 9))
sketch8.addConstraint(Sketcher.Constraint("Equal", 11, 13))
sketch8.addConstraint(Sketcher.Constraint("Equal", 15, 17))
sketch8.addConstraint(Sketcher.Constraint("Equal", 19, 21))
sketch8.addConstraint(Sketcher.Constraint("Equal", 23, 25))
sketch8.addConstraint(Sketcher.Constraint("Equal", 27, 29))
sketch8.addConstraint(Sketcher.Constraint("Equal", 31, 33))
sketch8.addConstraint(Sketcher.Constraint("Equal", 35, 37))
sketch8.addConstraint(Sketcher.Constraint("Equal", 39, 41))
sketch8.addConstraint(Sketcher.Constraint("Equal", 43, 45))
sketch8.addConstraint(Sketcher.Constraint("Equal", 47, 49))
sketch8.addConstraint(Sketcher.Constraint("Equal", 51, 53))
sketch8.addConstraint(Sketcher.Constraint("Equal", 55, 57))
sketch8.addConstraint(Sketcher.Constraint("Equal", 59, 61))
sketch8.addConstraint(Sketcher.Constraint("Equal", 63, 65))
sketch8.addConstraint(Sketcher.Constraint("Equal", 67, 69))
sketch8.addConstraint(Sketcher.Constraint("DistanceX", 0, 2, 0, 1, Q("10 mm")))
sketch8.addConstraint(Sketcher.Constraint("DistanceY", 1, 2, 1, 1, Q("5 mm")))
sketch8.addConstraint(Sketcher.Constraint("DistanceX", 0, 2, -1, 1, Q("5 mm")))
sketch8.addConstraint(Sketcher.Constraint("DistanceY", 0, 2, -1, 1, Q("243 mm")))
sketch8.addConstraint(Sketcher.Constraint("DistanceY", 4, 2, -1, 1, Q("223 mm")))
sketch8.addConstraint(Sketcher.Constraint("DistanceY", 8, 2, -1, 1, Q("233 mm")))
sketch8.addConstraint(Sketcher.Constraint("DistanceY", 12, 2, -1, 1, Q("213 mm")))
sketch8.addConstraint(Sketcher.Constraint("DistanceY", 16, 2, -1, 1, Q("203 mm")))
sketch8.addConstraint(Sketcher.Constraint("DistanceY", 20, 2, -1, 1, Q("193 mm")))
sketch8.addConstraint(Sketcher.Constraint("DistanceY", 24, 2, -1, 1, Q("183 mm")))
sketch8.addConstraint(Sketcher.Constraint("DistanceY", 28, 2, -1, 1, Q("173 mm")))
sketch8.addConstraint(Sketcher.Constraint("DistanceY", 32, 2, -1, 1, Q("163 mm")))
sketch8.addConstraint(Sketcher.Constraint("DistanceY", 36, 2, -1, 1, Q("153 mm")))
sketch8.addConstraint(Sketcher.Constraint("DistanceY", 40, 2, -1, 1, Q("143 mm")))
sketch8.addConstraint(Sketcher.Constraint("DistanceY", 44, 2, -1, 1, Q("133 mm")))
sketch8.addConstraint(Sketcher.Constraint("DistanceY", 48, 2, -1, 1, Q("123 mm")))
sketch8.addConstraint(Sketcher.Constraint("DistanceY", 52, 2, -1, 1, Q("113 mm")))
sketch8.addConstraint(Sketcher.Constraint("DistanceY", 56, 2, -1, 1, Q("103 mm")))
sketch8.addConstraint(Sketcher.Constraint("DistanceY", 60, 2, -1, 1, Q("93 mm")))
sketch8.addConstraint(Sketcher.Constraint("DistanceY", 64, 2, -1, 1, Q("83 mm")))
sketch8.addConstraint(Sketcher.Constraint("DistanceY", 68, 2, -1, 1, Q("73 mm")))
pocket4 = body.newObject("PartDesign::Pocket", "Pocket003")
pocket4.Profile = sketch8
pocket4.Length = 2

# Sketch on YZ plane
sketch9 = body.newObject("Sketcher::SketchObject", "Sketch008")
sketch9.AttachmentSupport = (doc.getObject("YZ_Plane"), [""])
sketch9.MapMode = "FlatFace"
sketch9.AttachmentOffset = App.Placement(App.Vector(0, 0, 15.5), App.Rotation())
sketch9.addGeometry(Part.Circle(App.Vector(0, -10, 0), App.Vector(0, 0, 1), 3.2), False)
sketch9.addConstraint(Sketcher.Constraint("PointOnObject", 0, 3, -2))
sketch9.addConstraint(Sketcher.Constraint("Diameter", 0, Q("6.5 mm")))
sketch9.addConstraint(Sketcher.Constraint("DistanceY", 0, 3, -1, 1, Q("10 mm")))
doc.recompute()
hole3 = body.newObject("PartDesign::Hole", "Hole002")
hole3.Profile = sketch9
hole3.ThreadType = "None"
hole3.Diameter = 6.5
hole3.DepthType = "Dimension"
hole3.Depth = 8.8
hole3.DrillPoint = "Flat"

# Sketch on YZ plane
sketch10 = body.newObject("Sketcher::SketchObject", "Sketch009")
sketch10.AttachmentSupport = (doc.getObject("YZ_Plane"), [""])
sketch10.MapMode = "FlatFace"
sketch10.AttachmentOffset = App.Placement(App.Vector(0, 0, 11.5), App.Rotation())
sketch10.addGeometry(Part.Circle(App.Vector(0, -43.5, 0), App.Vector(0, 0, 1), 2.5), False)
sketch10.addConstraint(Sketcher.Constraint("PointOnObject", 0, 3, -2))
sketch10.addConstraint(Sketcher.Constraint("Diameter", 0, Q("5 mm")))
sketch10.addConstraint(Sketcher.Constraint("DistanceY", 0, 3, -1, 1, Q("43.5 mm")))
doc.recompute()
hole4 = body.newObject("PartDesign::Hole", "Hole003")
hole4.Profile = sketch10
hole4.ThreadType = "None"
hole4.Diameter = 5
hole4.DepthType = "Dimension"
hole4.Depth = 15
hole4.DrillPoint = "Angled"
hole4.DrillPointAngle = 118
hole4.HoleCutType = "Countersink"
hole4.HoleCutDiameter = 6.05
hole4.HoleCutCountersinkAngle = 90

# Sketch on YZ plane
sketch11 = body.newObject("Sketcher::SketchObject", "Sketch010")
sketch11.AttachmentSupport = (doc.getObject("YZ_Plane"), [""])
sketch11.MapMode = "FlatFace"
sketch11.AttachmentOffset = App.Placement(App.Vector(0, 0, 15.5), App.Rotation())
sketch11.addGeometry(Part.Circle(App.Vector(0, -65, 0), App.Vector(0, 0, 1), 3.2), False)
sketch11.addConstraint(Sketcher.Constraint("PointOnObject", 0, 3, -2))
sketch11.addConstraint(Sketcher.Constraint("Diameter", 0, Q("6.5 mm")))
sketch11.addConstraint(Sketcher.Constraint("DistanceY", 0, 3, -1, 1, Q("65 mm")))
doc.recompute()
hole5 = body.newObject("PartDesign::Hole", "Hole004")
hole5.Profile = sketch11
hole5.ThreadType = "None"
hole5.Diameter = 6.5
hole5.DepthType = "ThroughAll"
hole5.HoleCutType = "Counterbore"
hole5.HoleCutDiameter = 12
hole5.HoleCutDepth = 16
doc.recompute()

chamfer = body.newObject("PartDesign::Chamfer", "Chamfer")
chamfer.Base = (hole5, edges_at(hole5, [(15.5, -5, -10.5), (15.5, 5, -10.5)]))
chamfer.Size = 1
doc.recompute()

chamfer2 = body.newObject("PartDesign::Chamfer", "Chamfer001")
chamfer2.Base = (chamfer, edges_at(chamfer, [(15.5, 0, -13.25)]))
chamfer2.Size = 0.5
doc.recompute()

chamfer3 = body.newObject("PartDesign::Chamfer", "Chamfer002")
chamfer3.Base = (chamfer2, edges_at(chamfer2, [
    (15.5, 5, -249),
    (15.5, -5, -249),
    (15.5, -5, -240.5),
    (15.5, -5, -230.5),
    (15.5, -5, -220.5),
    (15.5, -5, -210.5),
    (15.5, -5, -200.5),
    (15.5, -5, -190.5),
    (15.5, -5, -180.5),
    (15.5, -5, -170.5),
    (15.5, -5, -160.5),
    (15.5, -5, -150.5),
    (15.5, -5, -140.5),
    (15.5, -5, -130.5),
    (15.5, -5, -120.5),
    (15.5, -5, -110.5),
    (15.5, -5, -100.5),
    (15.5, -5, -90.5),
    (15.5, -5, -80.5),
    (15.5, -5, -70.658),
    (15.5, 5, -240.5),
    (15.5, 5, -230.5),
    (15.5, 5, -220.5),
    (15.5, 5, -210.5),
    (15.5, 5, -200.5),
    (15.5, 5, -190.5),
    (15.5, 5, -180.5),
    (15.5, 5, -170.5),
    (15.5, 5, -160.5),
    (15.5, 5, -150.5),
    (15.5, 5, -140.5),
    (15.5, 5, -130.5),
    (15.5, 5, -120.5),
    (15.5, 5, -110.5),
    (15.5, 5, -100.5),
    (15.5, 5, -90.5),
    (15.5, 5, -80.5),
    (15.5, 5, -70.658),
]))
chamfer3.Size = 0.5

doc.recompute()
